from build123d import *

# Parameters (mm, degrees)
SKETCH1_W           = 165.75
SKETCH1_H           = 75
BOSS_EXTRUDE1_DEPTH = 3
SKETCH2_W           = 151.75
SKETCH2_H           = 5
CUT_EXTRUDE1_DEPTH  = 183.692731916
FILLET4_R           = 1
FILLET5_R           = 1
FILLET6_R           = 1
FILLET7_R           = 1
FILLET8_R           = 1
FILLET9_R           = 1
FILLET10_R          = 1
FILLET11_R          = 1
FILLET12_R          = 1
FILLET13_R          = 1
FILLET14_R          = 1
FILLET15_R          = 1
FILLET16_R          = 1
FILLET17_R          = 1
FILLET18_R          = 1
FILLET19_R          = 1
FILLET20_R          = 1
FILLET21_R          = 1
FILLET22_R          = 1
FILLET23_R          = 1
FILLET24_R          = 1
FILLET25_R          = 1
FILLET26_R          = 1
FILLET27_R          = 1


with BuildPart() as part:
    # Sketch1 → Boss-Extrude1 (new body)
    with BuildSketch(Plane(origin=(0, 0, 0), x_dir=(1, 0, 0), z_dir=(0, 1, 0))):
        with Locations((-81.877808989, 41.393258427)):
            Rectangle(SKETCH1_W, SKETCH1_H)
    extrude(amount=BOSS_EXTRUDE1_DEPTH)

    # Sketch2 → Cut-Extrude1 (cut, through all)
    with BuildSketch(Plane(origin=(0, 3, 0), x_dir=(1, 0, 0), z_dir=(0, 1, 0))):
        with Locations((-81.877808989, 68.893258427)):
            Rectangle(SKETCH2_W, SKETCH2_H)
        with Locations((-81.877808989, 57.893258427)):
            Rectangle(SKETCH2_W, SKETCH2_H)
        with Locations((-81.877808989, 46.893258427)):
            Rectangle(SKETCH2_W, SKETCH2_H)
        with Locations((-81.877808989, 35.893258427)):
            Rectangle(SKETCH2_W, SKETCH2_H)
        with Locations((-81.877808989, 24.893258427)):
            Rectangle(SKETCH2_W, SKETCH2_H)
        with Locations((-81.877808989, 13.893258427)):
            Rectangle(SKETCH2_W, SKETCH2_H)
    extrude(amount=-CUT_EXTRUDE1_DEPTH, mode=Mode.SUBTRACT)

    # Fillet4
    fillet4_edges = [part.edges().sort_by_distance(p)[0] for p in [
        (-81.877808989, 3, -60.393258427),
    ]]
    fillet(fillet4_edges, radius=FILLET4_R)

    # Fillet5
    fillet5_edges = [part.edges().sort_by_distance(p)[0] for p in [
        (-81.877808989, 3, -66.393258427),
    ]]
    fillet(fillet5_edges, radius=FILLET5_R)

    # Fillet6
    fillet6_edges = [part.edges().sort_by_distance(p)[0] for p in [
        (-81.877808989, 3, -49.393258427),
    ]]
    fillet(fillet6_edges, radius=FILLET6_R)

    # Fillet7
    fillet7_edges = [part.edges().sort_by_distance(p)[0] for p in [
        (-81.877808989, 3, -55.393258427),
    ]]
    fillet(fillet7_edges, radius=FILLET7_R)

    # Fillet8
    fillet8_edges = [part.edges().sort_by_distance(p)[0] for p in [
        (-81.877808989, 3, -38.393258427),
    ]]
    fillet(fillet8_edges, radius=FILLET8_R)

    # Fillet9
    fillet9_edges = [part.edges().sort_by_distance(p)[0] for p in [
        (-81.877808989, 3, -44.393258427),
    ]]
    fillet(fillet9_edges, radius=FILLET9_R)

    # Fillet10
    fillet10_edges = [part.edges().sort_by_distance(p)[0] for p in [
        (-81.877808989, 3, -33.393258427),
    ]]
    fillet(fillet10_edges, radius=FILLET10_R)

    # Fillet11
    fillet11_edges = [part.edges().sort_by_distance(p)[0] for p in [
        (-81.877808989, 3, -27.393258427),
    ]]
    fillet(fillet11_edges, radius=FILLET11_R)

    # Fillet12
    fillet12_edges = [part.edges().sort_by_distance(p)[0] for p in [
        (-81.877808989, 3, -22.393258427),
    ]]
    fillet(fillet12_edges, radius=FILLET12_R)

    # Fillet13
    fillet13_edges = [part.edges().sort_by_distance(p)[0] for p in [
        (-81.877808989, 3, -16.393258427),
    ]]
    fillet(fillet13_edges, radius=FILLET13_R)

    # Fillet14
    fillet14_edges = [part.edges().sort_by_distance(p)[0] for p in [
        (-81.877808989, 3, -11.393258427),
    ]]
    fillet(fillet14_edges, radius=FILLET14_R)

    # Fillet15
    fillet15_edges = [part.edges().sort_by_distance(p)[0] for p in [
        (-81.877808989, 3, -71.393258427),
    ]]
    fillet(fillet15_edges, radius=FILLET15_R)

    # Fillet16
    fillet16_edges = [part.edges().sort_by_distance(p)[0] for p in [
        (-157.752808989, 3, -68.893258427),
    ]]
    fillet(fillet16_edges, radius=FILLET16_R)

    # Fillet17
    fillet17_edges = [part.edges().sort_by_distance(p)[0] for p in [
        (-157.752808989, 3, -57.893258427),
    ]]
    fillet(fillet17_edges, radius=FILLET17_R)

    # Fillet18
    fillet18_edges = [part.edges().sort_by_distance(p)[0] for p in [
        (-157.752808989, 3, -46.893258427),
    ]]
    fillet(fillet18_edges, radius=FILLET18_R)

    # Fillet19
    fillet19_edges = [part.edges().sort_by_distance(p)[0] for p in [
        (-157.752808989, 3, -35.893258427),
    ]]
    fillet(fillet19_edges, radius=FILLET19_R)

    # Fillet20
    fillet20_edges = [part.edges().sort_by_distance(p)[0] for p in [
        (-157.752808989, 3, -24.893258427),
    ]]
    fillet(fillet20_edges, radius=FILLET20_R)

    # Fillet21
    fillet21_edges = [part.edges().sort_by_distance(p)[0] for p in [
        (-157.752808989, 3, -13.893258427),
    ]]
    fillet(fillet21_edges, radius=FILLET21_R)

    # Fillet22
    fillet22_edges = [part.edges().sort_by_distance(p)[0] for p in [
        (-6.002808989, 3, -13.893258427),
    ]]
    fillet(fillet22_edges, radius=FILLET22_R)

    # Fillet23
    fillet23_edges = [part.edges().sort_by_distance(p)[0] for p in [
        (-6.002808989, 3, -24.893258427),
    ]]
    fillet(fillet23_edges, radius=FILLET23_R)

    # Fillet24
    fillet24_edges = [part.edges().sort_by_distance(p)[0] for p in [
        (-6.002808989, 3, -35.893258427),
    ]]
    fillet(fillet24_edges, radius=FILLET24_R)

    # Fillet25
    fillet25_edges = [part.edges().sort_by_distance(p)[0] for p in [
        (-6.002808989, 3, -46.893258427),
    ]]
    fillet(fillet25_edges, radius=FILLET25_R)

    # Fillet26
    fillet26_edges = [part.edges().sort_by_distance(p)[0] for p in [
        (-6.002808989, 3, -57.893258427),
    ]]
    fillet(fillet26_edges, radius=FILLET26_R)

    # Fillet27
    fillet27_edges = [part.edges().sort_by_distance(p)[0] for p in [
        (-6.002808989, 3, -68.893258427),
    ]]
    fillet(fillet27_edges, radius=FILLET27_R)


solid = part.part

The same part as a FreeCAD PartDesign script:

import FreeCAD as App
import Part
import Sketcher


def edges_at(feature, points):
    """Names of the edges that pass closest to the given points."""
    edges = feature.Shape.Edges
    near = lambda p: min(range(len(edges)), key=lambda i: edges[i].distToShape(Part.Vertex(*p))[0])
    return sorted({f"Edge{near(p) + 1}" for p in points})

doc = App.newDocument("Part")
params = doc.addObject("Spreadsheet::Sheet", "Params")
for row, (alias, value) in enumerate([
    ("sketch1_height", "75 mm"),
    ("sketch1_width", "165.75 mm"),
    ("pad1_length", "3 mm"),
    ("sketch2_height", "5 mm"),
    ("sketch2_width", "151.75 mm"),
    ("fillet_radius", "1 mm"),
    ("fillet2_radius", "1 mm"),
    ("fillet3_radius", "1 mm"),
    ("fillet4_radius", "1 mm"),
    ("fillet5_radius", "1 mm"),
    ("fillet6_radius", "1 mm"),
    ("fillet7_radius", "1 mm"),
    ("fillet8_radius", "1 mm"),
    ("fillet9_radius", "1 mm"),
    ("fillet10_radius", "1 mm"),
    ("fillet11_radius", "1 mm"),
    ("fillet12_radius", "1 mm"),
    ("fillet13_radius", "1 mm"),
    ("fillet14_radius", "1 mm"),
    ("fillet15_radius", "1 mm"),
    ("fillet16_radius", "1 mm"),
    ("fillet17_radius", "1 mm"),
    ("fillet18_radius", "1 mm"),
    ("fillet19_radius", "1 mm"),
    ("fillet20_radius", "1 mm"),
    ("fillet21_radius", "1 mm"),
    ("fillet22_radius", "1 mm"),
    ("fillet23_radius", "1 mm"),
    ("fillet24_radius", "1 mm"),
], start=1):
    params.set(f"A{row}", alias)
    params.set(f"B{row}", "=" + value)
    params.setAlias(f"B{row}", alias)

body = doc.addObject("PartDesign::Body", "Body")

sketch1 = doc.addObject("Sketcher::SketchObject", "Sketch")
body.addObject(sketch1)
sketch1.AttachmentSupport = (doc.XZ_Plane, [""])
sketch1.MapMode = "FlatFace"
sketch1.addGeometry(Part.LineSegment(App.Vector(-164.752809, -78.893258, 0), App.Vector(-164.752809, -3.893258, 0)), False)
sketch1.addGeometry(Part.LineSegment(App.Vector(-164.752809, -3.893258, 0), App.Vector(0.997191, -3.893258, 0)), False)
sketch1.addGeometry(Part.LineSegment(App.Vector(0.997191, -3.893258, 0), App.Vector(0.997191, -78.893258, 0)), False)
sketch1.addGeometry(Part.LineSegment(App.Vector(0.997191, -78.893258, 0), App.Vector(-164.752809, -78.893258, 0)), False)
sketch1.addConstraint(Sketcher.Constraint("Coincident", 0, 2, 1, 1))
sketch1.addConstraint(Sketcher.Constraint("Coincident", 1, 2, 2, 1))
sketch1.addConstraint(Sketcher.Constraint("Coincident", 2, 2, 3, 1))
sketch1.addConstraint(Sketcher.Constraint("Coincident", 3, 2, 0, 1))
sketch1.addConstraint(Sketcher.Constraint("Vertical", 0))
sketch1.addConstraint(Sketcher.Constraint("Horizontal", 1))
sketch1.addConstraint(Sketcher.Constraint("Vertical", 2))
sketch1.addConstraint(Sketcher.Constraint("Horizontal", 3))
sketch1.addConstraint(Sketcher.Constraint("DistanceY", 0, 1, 0, 2, 75.0))
sketch1.addConstraint(Sketcher.Constraint("DistanceX", 1, 1, 1, 2, 165.75))
sketch1.addConstraint(Sketcher.Constraint("DistanceX", 0, 2, -1, 1, 164.752809))
sketch1.addConstraint(Sketcher.Constraint("DistanceY", 0, 2, -1, 1, 3.893258))
sketch1.setExpression("Constraints[8]", "Params.sketch1_height")
sketch1.setExpression("Constraints[9]", "Params.sketch1_width")
pad1 = doc.addObject("PartDesign::Pad", "Pad")
body.addObject(pad1)
pad1.Profile = sketch1
pad1.setExpression("Length", "Params.pad1_length")
pad1.Reversed = True

sketch2 = doc.addObject("Sketcher::SketchObject", "Sketch001")
body.addObject(sketch2)
sketch2.AttachmentSupport = (doc.XZ_Plane, [""])
sketch2.MapMode = "FlatFace"
sketch2.AttachmentOffset = App.Placement(App.Vector(0, 0, -3), App.Rotation())
sketch2.addGeometry(Part.LineSegment(App.Vector(-157.752809, -71.393258, 0), App.Vector(-157.752809, -66.393258, 0)), False)
sketch2.addGeometry(Part.LineSegment(App.Vector(-157.752809, -66.393258, 0), App.Vector(-6.002809, -66.393258, 0)), False)
sketch2.addGeometry(Part.LineSegment(App.Vector(-6.002809, -66.393258, 0), App.Vector(-6.002809, -71.393258, 0)), False)
sketch2.addGeometry(Part.LineSegment(App.Vector(-6.002809, -71.393258, 0), App.Vector(-157.752809, -71.393258, 0)), False)
sketch2.addGeometry(Part.LineSegment(App.Vector(-157.752809, -60.393258, 0), App.Vector(-157.752809, -55.393258, 0)), False)
sketch2.addGeometry(Part.LineSegment(App.Vector(-157.752809, -55.393258, 0), App.Vector(-6.002809, -55.393258, 0)), False)
sketch2.addGeometry(Part.LineSegment(App.Vector(-6.002809, -55.393258, 0), App.Vector(-6.002809, -60.393258, 0)), False)
sketch2.addGeometry(Part.LineSegment(App.Vector(-6.002809, -60.393258, 0), App.Vector(-157.752809, -60.393258, 0)), False)
sketch2.addGeometry(Part.LineSegment(App.Vector(-157.752809, -49.393258, 0), App.Vector(-157.752809, -44.393258, 0)), False)
sketch2.addGeometry(Part.LineSegment(App.Vector(-157.752809, -44.393258, 0), App.Vector(-6.002809, -44.393258, 0)), False)
sketch2.addGeometry(Part.LineSegment(App.Vector(-6.002809, -44.393258, 0), App.Vector(-6.002809, -49.393258, 0)), False)
sketch2.addGeometry(Part.LineSegment(App.Vector(-6.002809, -49.393258, 0), App.Vector(-157.752809, -49.393258, 0)), False)
sketch2.addGeometry(Part.LineSegment(App.Vector(-157.752809, -38.393258, 0), App.Vector(-157.752809, -33.393258, 0)), False)
sketch2.addGeometry(Part.LineSegment(App.Vector(-157.752809, -33.393258, 0), App.Vector(-6.002809, -33.393258, 0)), False)
sketch2.addGeometry(Part.LineSegment(App.Vector(-6.002809, -33.393258, 0), App.Vector(-6.002809, -38.393258, 0)), False)
sketch2.addGeometry(Part.LineSegment(App.Vector(-6.002809, -38.393258, 0), App.Vector(-157.752809, -38.393258, 0)), False)
sketch2.addGeometry(Part.LineSegment(App.Vector(-157.752809, -27.393258, 0), App.Vector(-157.752809, -22.393258, 0)), False)
sketch2.addGeometry(Part.LineSegment(App.Vector(-157.752809, -22.393258, 0), App.Vector(-6.002809, -22.393258, 0)), False)
sketch2.addGeometry(Part.LineSegment(App.Vector(-6.002809, -22.393258, 0), App.Vector(-6.002809, -27.393258, 0)), False)
sketch2.addGeometry(Part.LineSegment(App.Vector(-6.002809, -27.393258, 0), App.Vector(-157.752809, -27.393258, 0)), False)
sketch2.addGeometry(Part.LineSegment(App.Vector(-157.752809, -16.393258, 0), App.Vector(-157.752809, -11.393258, 0)), False)
sketch2.addGeometry(Part.LineSegment(App.Vector(-157.752809, -11.393258, 0), App.Vector(-6.002809, -11.393258, 0)), False)
sketch2.addGeometry(Part.LineSegment(App.Vector(-6.002809, -11.393258, 0), App.Vector(-6.002809, -16.393258, 0)), False)
sketch2.addGeometry(Part.LineSegment(App.Vector(-6.002809, -16.393258, 0), App.Vector(-157.752809, -16.393258, 0)), False)
sketch2.addConstraint(Sketcher.Constraint("Coincident", 0, 2, 1, 1))
sketch2.addConstraint(Sketcher.Constraint("Coincident", 1, 2, 2, 1))
sketch2.addConstraint(Sketcher.Constraint("Coincident", 2, 2, 3, 1))
sketch2.addConstraint(Sketcher.Constraint("Coincident", 3, 2, 0, 1))
sketch2.addConstraint(Sketcher.Constraint("Coincident", 4, 2, 5, 1))
sketch2.addConstraint(Sketcher.Constraint("Coincident", 5, 2, 6, 1))
sketch2.addConstraint(Sketcher.Constraint("Coincident", 6, 2, 7, 1))
sketch2.addConstraint(Sketcher.Constraint("Coincident", 7, 2, 4, 1))
sketch2.addConstraint(Sketcher.Constraint("Coincident", 8, 2, 9, 1))
sketch2.addConstraint(Sketcher.Constraint("Coincident", 9, 2, 10, 1))
sketch2.addConstraint(Sketcher.Constraint("Coincident", 10, 2, 11, 1))
sketch2.addConstraint(Sketcher.Constraint("Coincident", 11, 2, 8, 1))
sketch2.addConstraint(Sketcher.Constraint("Coincident", 12, 2, 13, 1))
sketch2.addConstraint(Sketcher.Constraint("Coincident", 13, 2, 14, 1))
sketch2.addConstraint(Sketcher.Constraint("Coincident", 14, 2, 15, 1))
sketch2.addConstraint(Sketcher.Constraint("Coincident", 15, 2, 12, 1))
sketch2.addConstraint(Sketcher.Constraint("Coincident", 16, 2, 17, 1))
sketch2.addConstraint(Sketcher.Constraint("Coincident", 17, 2, 18, 1))
sketch2.addConstraint(Sketcher.Constraint("Coincident", 18, 2, 19, 1))
sketch2.addConstraint(Sketcher.Constraint("Coincident", 19, 2, 16, 1))
sketch2.addConstraint(Sketcher.Constraint("Coincident", 20, 2, 21, 1))
sketch2.addConstraint(Sketcher.Constraint("Coincident", 21, 2, 22, 1))
sketch2.addConstraint(Sketcher.Constraint("Coincident", 22, 2, 23, 1))
sketch2.addConstraint(Sketcher.Constraint("Coincident", 23, 2, 20, 1))
sketch2.addConstraint(Sketcher.Constraint("Vertical", 0))
sketch2.addConstraint(Sketcher.Constraint("Horizontal", 1))
sketch2.addConstraint(Sketcher.Constraint("Vertical", 2))
sketch2.addConstraint(Sketcher.Constraint("Horizontal", 3))
sketch2.addConstraint(Sketcher.Constraint("Vertical", 4))
sketch2.addConstraint(Sketcher.Constraint("Horizontal", 5))
sketch2.addConstraint(Sketcher.Constraint("Vertical", 6))
sketch2.addConstraint(Sketcher.Constraint("Horizontal", 7))
sketch2.addConstraint(Sketcher.Constraint("Vertical", 8))
sketch2.addConstraint(Sketcher.Constraint("Horizontal", 9))
sketch2.addConstraint(Sketcher.Constraint("Vertical", 10))
sketch2.addConstraint(Sketcher.Constraint("Horizontal", 11))
sketch2.addConstraint(Sketcher.Constraint("Vertical", 12))
sketch2.addConstraint(Sketcher.Constraint("Horizontal", 13))
sketch2.addConstraint(Sketcher.Constraint("Vertical", 14))
sketch2.addConstraint(Sketcher.Constraint("Horizontal", 15))
sketch2.addConstraint(Sketcher.Constraint("Vertical", 16))
sketch2.addConstraint(Sketcher.Constraint("Horizontal", 17))
sketch2.addConstraint(Sketcher.Constraint("Vertical", 18))
sketch2.addConstraint(Sketcher.Constraint("Horizontal", 19))
sketch2.addConstraint(Sketcher.Constraint("Vertical", 20))
sketch2.addConstraint(Sketcher.Constraint("Horizontal", 21))
sketch2.addConstraint(Sketcher.Constraint("Vertical", 22))
sketch2.addConstraint(Sketcher.Constraint("Horizontal", 23))
sketch2.addConstraint(Sketcher.Constraint("Vertical", 3, 2, 4, 2))
sketch2.addConstraint(Sketcher.Constraint("Vertical", 2, 2, 5, 2))
sketch2.addConstraint(Sketcher.Constraint("Vertical", 7, 2, 8, 2))
sketch2.addConstraint(Sketcher.Constraint("Vertical", 6, 2, 9, 2))
sketch2.addConstraint(Sketcher.Constraint("Vertical", 11, 2, 12, 2))
sketch2.addConstraint(Sketcher.Constraint("Vertical", 10, 2, 13, 2))
sketch2.addConstraint(Sketcher.Constraint("Vertical", 15, 2, 16, 2))
sketch2.addConstraint(Sketcher.Constraint("Vertical", 14, 2, 17, 2))
sketch2.addConstraint(Sketcher.Constraint("Vertical", 19, 2, 20, 2))
sketch2.addConstraint(Sketcher.Constraint("Vertical", 18, 2, 21, 2))
sketch2.addConstraint(Sketcher.Constraint("Equal", 2, 4))
sketch2.addConstraint(Sketcher.Constraint("Equal", 6, 8))
sketch2.addConstraint(Sketcher.Constraint("Equal", 10, 12))
sketch2.addConstraint(Sketcher.Constraint("Equal", 14, 16))
sketch2.addConstraint(Sketcher.Constraint("Equal", 18, 20))
sketch2.addConstraint(Sketcher.Constraint("DistanceY", 0, 1, 0, 2, 5.0))
sketch2.addConstraint(Sketcher.Constraint("DistanceY", 0, 2, 4, 2, 11.0))
sketch2.addConstraint(Sketcher.Constraint("DistanceY", 4, 2, 8, 2, 11.0))
sketch2.addConstraint(Sketcher.Constraint("DistanceY", 8, 2, 12, 2, 11.0))
sketch2.addConstraint(Sketcher.Constraint("DistanceY", 12, 2, 16, 2, 11.0))
sketch2.addConstraint(Sketcher.Constraint("DistanceY", 16, 2, 20, 2, 11.0))
sketch2.addConstraint(Sketcher.Constraint("DistanceX", 1, 1, 1, 2, 151.75))
sketch2.addConstraint(Sketcher.Constraint("DistanceX", 0, 2, -1, 1, 157.752809))
sketch2.addConstraint(Sketcher.Constraint("DistanceY", 0, 2, -1, 1, 66.393258))
sketch2.setExpression("Constraints[63]", "Params.sketch2_height")
sketch2.setExpression("Constraints[69]", "Params.sketch2_width")
pocket1 = doc.addObject("PartDesign::Pocket", "Pocket")
body.addObject(pocket1)
pocket1.Profile = sketch2
pocket1.Type = "ThroughAll"
pocket1.Reversed = True
doc.recompute()

fillet = doc.addObject("PartDesign::Fillet", "Fillet")
body.addObject(fillet)
fillet.Base = (pocket1, edges_at(pocket1, [(-81.878, 3, -60.393)]))
fillet.setExpression("Radius", "Params.fillet_radius")
doc.recompute()

fillet2 = doc.addObject("PartDesign::Fillet", "Fillet001")
body.addObject(fillet2)
fillet2.Base = (fillet, edges_at(fillet, [(-81.878, 3, -66.393)]))
fillet2.setExpression("Radius", "Params.fillet2_radius")
doc.recompute()

fillet3 = doc.addObject("PartDesign::Fillet", "Fillet002")
body.addObject(fillet3)
fillet3.Base = (fillet2, edges_at(fillet2, [(-81.878, 3, -49.393)]))
fillet3.setExpression("Radius", "Params.fillet3_radius")
doc.recompute()

fillet4 = doc.addObject("PartDesign::Fillet", "Fillet003")
body.addObject(fillet4)
fillet4.Base = (fillet3, edges_at(fillet3, [(-81.878, 3, -55.393)]))
fillet4.setExpression("Radius", "Params.fillet4_radius")
doc.recompute()

fillet5 = doc.addObject("PartDesign::Fillet", "Fillet004")
body.addObject(fillet5)
fillet5.Base = (fillet4, edges_at(fillet4, [(-81.878, 3, -38.393)]))
fillet5.setExpression("Radius", "Params.fillet5_radius")
doc.recompute()

fillet6 = doc.addObject("PartDesign::Fillet", "Fillet005")
body.addObject(fillet6)
fillet6.Base = (fillet5, edges_at(fillet5, [(-81.878, 3, -44.393)]))
fillet6.setExpression("Radius", "Params.fillet6_radius")
doc.recompute()

fillet7 = doc.addObject("PartDesign::Fillet", "Fillet006")
body.addObject(fillet7)
fillet7.Base = (fillet6, edges_at(fillet6, [(-81.878, 3, -33.393)]))
fillet7.setExpression("Radius", "Params.fillet7_radius")
doc.recompute()

fillet8 = doc.addObject("PartDesign::Fillet", "Fillet007")
body.addObject(fillet8)
fillet8.Base = (fillet7, edges_at(fillet7, [(-81.878, 3, -27.393)]))
fillet8.setExpression("Radius", "Params.fillet8_radius")
doc.recompute()

fillet9 = doc.addObject("PartDesign::Fillet", "Fillet008")
body.addObject(fillet9)
fillet9.Base = (fillet8, edges_at(fillet8, [(-81.878, 3, -22.393)]))
fillet9.setExpression("Radius", "Params.fillet9_radius")
doc.recompute()

fillet10 = doc.addObject("PartDesign::Fillet", "Fillet009")
body.addObject(fillet10)
fillet10.Base = (fillet9, edges_at(fillet9, [(-81.878, 3, -16.393)]))
fillet10.setExpression("Radius", "Params.fillet10_radius")
doc.recompute()

fillet11 = doc.addObject("PartDesign::Fillet", "Fillet010")
body.addObject(fillet11)
fillet11.Base = (fillet10, edges_at(fillet10, [(-81.878, 3, -11.393)]))
fillet11.setExpression("Radius", "Params.fillet11_radius")
doc.recompute()

fillet12 = doc.addObject("PartDesign::Fillet", "Fillet011")
body.addObject(fillet12)
fillet12.Base = (fillet11, edges_at(fillet11, [(-81.878, 3, -71.393)]))
fillet12.setExpression("Radius", "Params.fillet12_radius")
doc.recompute()

fillet13 = doc.addObject("PartDesign::Fillet", "Fillet012")
body.addObject(fillet13)
fillet13.Base = (fillet12, edges_at(fillet12, [(-157.753, 3, -68.893)]))
fillet13.setExpression("Radius", "Params.fillet13_radius")
doc.recompute()

fillet14 = doc.addObject("PartDesign::Fillet", "Fillet013")
body.addObject(fillet14)
fillet14.Base = (fillet13, edges_at(fillet13, [(-157.753, 3, -57.893)]))
fillet14.setExpression("Radius", "Params.fillet14_radius")
doc.recompute()

fillet15 = doc.addObject("PartDesign::Fillet", "Fillet014")
body.addObject(fillet15)
fillet15.Base = (fillet14, edges_at(fillet14, [(-157.753, 3, -46.893)]))
fillet15.setExpression("Radius", "Params.fillet15_radius")
doc.recompute()

fillet16 = doc.addObject("PartDesign::Fillet", "Fillet015")
body.addObject(fillet16)
fillet16.Base = (fillet15, edges_at(fillet15, [(-157.753, 3, -35.893)]))
fillet16.setExpression("Radius", "Params.fillet16_radius")
doc.recompute()

fillet17 = doc.addObject("PartDesign::Fillet", "Fillet016")
body.addObject(fillet17)
fillet17.Base = (fillet16, edges_at(fillet16, [(-157.753, 3, -24.893)]))
fillet17.setExpression("Radius", "Params.fillet17_radius")
doc.recompute()

fillet18 = doc.addObject("PartDesign::Fillet", "Fillet017")
body.addObject(fillet18)
fillet18.Base = (fillet17, edges_at(fillet17, [(-157.753, 3, -13.893)]))
fillet18.setExpression("Radius", "Params.fillet18_radius")
doc.recompute()

fillet19 = doc.addObject("PartDesign::Fillet", "Fillet018")
body.addObject(fillet19)
fillet19.Base = (fillet18, edges_at(fillet18, [(-6.003, 3, -13.893)]))
fillet19.setExpression("Radius", "Params.fillet19_radius")
doc.recompute()

fillet20 = doc.addObject("PartDesign::Fillet", "Fillet019")
body.addObject(fillet20)
fillet20.Base = (fillet19, edges_at(fillet19, [(-6.003, 3, -24.893)]))
fillet20.setExpression("Radius", "Params.fillet20_radius")
doc.recompute()

fillet21 = doc.addObject("PartDesign::Fillet", "Fillet020")
body.addObject(fillet21)
fillet21.Base = (fillet20, edges_at(fillet20, [(-6.003, 3, -35.893)]))
fillet21.setExpression("Radius", "Params.fillet21_radius")
doc.recompute()

fillet22 = doc.addObject("PartDesign::Fillet", "Fillet021")
body.addObject(fillet22)
fillet22.Base = (fillet21, edges_at(fillet21, [(-6.003, 3, -46.893)]))
fillet22.setExpression("Radius", "Params.fillet22_radius")
doc.recompute()

fillet23 = doc.addObject("PartDesign::Fillet", "Fillet022")
body.addObject(fillet23)
fillet23.Base = (fillet22, edges_at(fillet22, [(-6.003, 3, -57.893)]))
fillet23.setExpression("Radius", "Params.fillet23_radius")
doc.recompute()

fillet24 = doc.addObject("PartDesign::Fillet", "Fillet023")
body.addObject(fillet24)
fillet24.Base = (fillet23, edges_at(fillet23, [(-6.003, 3, -68.893)]))
fillet24.setExpression("Radius", "Params.fillet24_radius")

doc.recompute()
